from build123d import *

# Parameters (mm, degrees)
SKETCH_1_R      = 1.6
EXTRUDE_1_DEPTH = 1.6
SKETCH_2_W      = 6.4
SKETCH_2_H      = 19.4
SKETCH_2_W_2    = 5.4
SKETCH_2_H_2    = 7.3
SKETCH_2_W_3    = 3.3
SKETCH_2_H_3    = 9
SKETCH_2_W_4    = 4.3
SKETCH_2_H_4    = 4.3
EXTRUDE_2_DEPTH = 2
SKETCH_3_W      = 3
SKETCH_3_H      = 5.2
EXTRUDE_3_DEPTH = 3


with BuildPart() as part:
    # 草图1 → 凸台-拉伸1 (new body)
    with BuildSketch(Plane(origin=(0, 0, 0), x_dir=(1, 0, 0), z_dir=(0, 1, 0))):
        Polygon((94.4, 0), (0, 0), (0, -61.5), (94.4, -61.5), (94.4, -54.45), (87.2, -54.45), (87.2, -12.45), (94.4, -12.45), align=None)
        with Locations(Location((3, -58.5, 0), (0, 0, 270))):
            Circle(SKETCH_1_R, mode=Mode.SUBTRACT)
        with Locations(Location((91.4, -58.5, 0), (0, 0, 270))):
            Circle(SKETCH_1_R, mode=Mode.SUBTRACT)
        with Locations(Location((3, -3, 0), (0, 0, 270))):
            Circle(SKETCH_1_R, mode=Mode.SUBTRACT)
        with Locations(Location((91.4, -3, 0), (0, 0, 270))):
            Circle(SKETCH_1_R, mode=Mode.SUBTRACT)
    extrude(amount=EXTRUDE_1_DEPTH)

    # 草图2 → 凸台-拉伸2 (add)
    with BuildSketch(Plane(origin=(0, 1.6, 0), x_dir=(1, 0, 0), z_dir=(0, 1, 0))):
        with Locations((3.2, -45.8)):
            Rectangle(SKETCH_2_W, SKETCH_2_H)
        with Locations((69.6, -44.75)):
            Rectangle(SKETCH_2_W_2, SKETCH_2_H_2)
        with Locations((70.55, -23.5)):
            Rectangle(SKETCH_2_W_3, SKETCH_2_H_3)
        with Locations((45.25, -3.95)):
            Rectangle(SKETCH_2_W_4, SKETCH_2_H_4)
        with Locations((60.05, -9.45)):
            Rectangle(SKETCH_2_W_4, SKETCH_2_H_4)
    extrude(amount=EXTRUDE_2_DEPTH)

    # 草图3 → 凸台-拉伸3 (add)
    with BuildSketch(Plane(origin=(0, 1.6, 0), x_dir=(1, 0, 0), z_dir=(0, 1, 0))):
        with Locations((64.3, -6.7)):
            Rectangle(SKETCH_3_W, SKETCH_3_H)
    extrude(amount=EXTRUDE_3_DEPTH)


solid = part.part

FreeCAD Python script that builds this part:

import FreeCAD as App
import Part
import Sketcher

V = App.Vector
Q = App.Units.Quantity


def add_polygon(sketch, points):
    """Adds a closed chain of lines whose ends are joined by coincident constraints."""
    first, n = sketch.GeometryCount, len(points)
    for a, b in zip(points, points[1:] + points[:1]):
        sketch.addGeometry(Part.LineSegment(App.Vector(*a, 0), App.Vector(*b, 0)), False)
    for i in range(n):
        sketch.addConstraint(Sketcher.Constraint("Coincident", first + i, 2, first + (i + 1) % n, 1))

doc = App.newDocument("Part")
body = doc.addObject("PartDesign::Body", "Body")

# Sketch on XZ plane
sketch1 = body.newObject("Sketcher::SketchObject", "Sketch")
sketch1.AttachmentSupport = (doc.getObject("XZ_Plane"), [""])
sketch1.MapMode = "FlatFace"
add_polygon(sketch1, [(94.4, 0), (0, 0), (0, 61.5), (94.4, 61.5), (94.4, 54.5), (87.2, 54.5), (87.2, 12.4), (94.4, 12.4)])  # lines 0-7
sketch1.addGeometry(Part.Circle(V(3, 58.5, 0), V(0, 0, 1), 1.6), False)  # 8
sketch1.addGeometry(Part.Circle(V(91.4, 58.5, 0), V(0, 0, 1), 1.6), False)  # 9
sketch1.addGeometry(Part.Circle(V(3, 3, 0), V(0, 0, 1), 1.6), False)  # 10
sketch1.addGeometry(Part.Circle(V(91.4, 3, 0), V(0, 0, 1), 1.6), False)  # 11
sketch1.addConstraint(Sketcher.Constraint("Horizontal", 0))
sketch1.addConstraint(Sketcher.Constraint("Vertical", 1))
sketch1.addConstraint(Sketcher.Constraint("Horizontal", 2))
sketch1.addConstraint(Sketcher.Constraint("Vertical", 3))
sketch1.addConstraint(Sketcher.Constraint("Horizontal", 4))
sketch1.addConstraint(Sketcher.Constraint("Vertical", 5))
sketch1.addConstraint(Sketcher.Constraint("Horizontal", 6))
sketch1.addConstraint(Sketcher.Constraint("Vertical", 7))
sketch1.addConstraint(Sketcher.Constraint("Coincident", 0, 2, -1, 1))
sketch1.addConstraint(Sketcher.Constraint("Equal", 8, 9))
sketch1.addConstraint(Sketcher.Constraint("Equal", 9, 10))
sketch1.addConstraint(Sketcher.Constraint("Equal", 10, 11))
sketch1.addConstraint(Sketcher.Constraint("Horizontal", 8, 3, 9, 3))
sketch1.addConstraint(Sketcher.Constraint("Horizontal", 10, 3, 11, 3))
sketch1.addConstraint(Sketcher.Constraint("Vertical", 8, 3, 10, 3))
sketch1.addConstraint(Sketcher.Constraint("Vertical", 9, 3, 11, 3))
sketch1.addConstraint(Sketcher.Constraint("Vertical", 3, 2, 6, 2))
sketch1.addConstraint(Sketcher.Constraint("Diameter", 8, Q("3.2 mm")))
sketch1.addConstraint(Sketcher.Constraint("DistanceY", 5, 2, 5, 1, Q("42 mm")))
sketch1.addConstraint(Sketcher.Constraint("DistanceX", 0, 2, 0, 1, Q("94.4 mm")))
sketch1.addConstraint(Sketcher.Constraint("DistanceX", 4, 2, 4, 1, Q("7.2 mm")))
sketch1.addConstraint(Sketcher.Constraint("DistanceY", 1, 1, 1, 2, Q("61.5 mm")))
sketch1.addConstraint(Sketcher.Constraint("DistanceX", -1, 1, 8, 3, Q("3 mm")))
sketch1.addConstraint(Sketcher.Constraint("DistanceY", -1, 1, 10, 3, Q("3 mm")))
sketch1.addConstraint(Sketcher.Constraint("DistanceY", 8, 3, 1, 2, Q("3 mm")))
sketch1.addConstraint(Sketcher.Constraint("DistanceX", 9, 3, 2, 2, Q("3 mm")))
sketch1.addConstraint(Sketcher.Constraint("DistanceY", 3, 2, 3, 1, Q("7.05 mm")))
pad1 = body.newObject("PartDesign::Pad", "Pad")
pad1.Profile = sketch1
pad1.Length = 1.6
pad1.Reversed = True

# Sketch on XZ plane
sketch2 = body.newObject("Sketcher::SketchObject", "Sketch001")
sketch2.AttachmentSupport = (doc.getObject("XZ_Plane"), [""])
sketch2.MapMode = "FlatFace"
sketch2.AttachmentOffset = App.Placement(V(0, 0, -1.6), App.Rotation())
add_polygon(sketch2, [(0, 36.1), (0, 55.5), (6.4, 55.5), (6.4, 36.1)])  # lines 0-3
add_polygon(sketch2, [(66.9, 41.1), (66.9, 48.4), (72.3, 48.4), (72.3, 41.1)])  # lines 4-7
add_polygon(sketch2, [(68.9, 19), (68.9, 28), (72.2, 28), (72.2, 19)])  # lines 8-11
add_polygon(sketch2, [(43.1, 1.8), (43.1, 6.1), (47.4, 6.1), (47.4, 1.8)])  # lines 12-15
add_polygon(sketch2, [(57.9, 7.3), (57.9, 11.6), (62.2, 11.6), (62.2, 7.3)])  # lines 16-19
sketch2.addConstraint(Sketcher.Constraint("Vertical", 0))
sketch2.addConstraint(Sketcher.Constraint("Horizontal", 1))
sketch2.addConstraint(Sketcher.Constraint("Vertical", 2))
sketch2.addConstraint(Sketcher.Constraint("Horizontal", 3))
sketch2.addConstraint(Sketcher.Constraint("Vertical", 4))
sketch2.addConstraint(Sketcher.Constraint("Horizontal", 5))
sketch2.addConstraint(Sketcher.Constraint("Vertical", 6))
sketch2.addConstraint(Sketcher.Constraint("Horizontal", 7))
sketch2.addConstraint(Sketcher.Constraint("Vertical", 8))
sketch2.addConstraint(Sketcher.Constraint("Horizontal", 9))
sketch2.addConstraint(Sketcher.Constraint("Vertical", 10))
sketch2.addConstraint(Sketcher.Constraint("Horizontal", 11))
sketch2.addConstraint(Sketcher.Constraint("Vertical", 12))
sketch2.addConstraint(Sketcher.Constraint("Horizontal", 13))
sketch2.addConstraint(Sketcher.Constraint("Vertical", 14))
sketch2.addConstraint(Sketcher.Constraint("Horizontal", 15))
sketch2.addConstraint(Sketcher.Constraint("Vertical", 16))
sketch2.addConstraint(Sketcher.Constraint("Horizontal", 17))
sketch2.addConstraint(Sketcher.Constraint("Vertical", 18))
sketch2.addConstraint(Sketcher.Constraint("Horizontal", 19))
sketch2.addConstraint(Sketcher.Constraint("PointOnObject", 0, 2, -2))
sketch2.addConstraint(Sketcher.Constraint("Equal", 15, 17))
sketch2.addConstraint(Sketcher.Constraint("Equal", 19, 12))
sketch2.addConstraint(Sketcher.Constraint("Equal", 14, 16))
sketch2.addConstraint(Sketcher.Constraint("DistanceY", 8, 1, 8, 2, Q("9 mm")))
sketch2.addConstraint(Sketcher.Constraint("DistanceX", 1, 1, 1, 2, Q("6.4 mm")))
sketch2.addConstraint(Sketcher.Constraint("DistanceX", 5, 1, 5, 2, Q("5.4 mm")))
sketch2.addConstraint(Sketcher.Constraint("DistanceX", 9, 1, 9, 2, Q("3.3 mm")))
sketch2.addConstraint(Sketcher.Constraint("DistanceX", 13, 1, 13, 2, Q("4.3 mm")))
sketch2.addConstraint(Sketcher.Constraint("DistanceY", 0, 1, 0, 2, Q("19.4 mm")))
sketch2.addConstraint(Sketcher.Constraint("DistanceY", 4, 1, 4, 2, Q("7.3 mm")))
sketch2.addConstraint(Sketcher.Constraint("DistanceY", -1, 1, 8, 2, Q("28 mm")))
sketch2.addConstraint(Sketcher.Constraint("DistanceY", 2, 2, 6, 2, Q("5 mm")))
sketch2.addConstraint(Sketcher.Constraint("DistanceX", 7, 2, 8, 2, Q("2 mm")))
sketch2.addConstraint(Sketcher.Constraint("DistanceY", 12, 2, 7, 2, Q("35 mm")))
sketch2.addConstraint(Sketcher.Constraint("DistanceX", 16, 2, 11, 2, Q("11 mm")))
sketch2.addConstraint(Sketcher.Constraint("DistanceY", -1, 1, 0, 2, Q("55.5 mm")))
sketch2.addConstraint(Sketcher.Constraint("DistanceX", -1, 1, 4, 2, Q("66.9 mm")))
sketch2.addConstraint(Sketcher.Constraint("DistanceX", -1, 1, 12, 2, Q("43.1 mm")))
sketch2.addConstraint(Sketcher.Constraint("DistanceY", -1, 1, 16, 2, Q("11.6 mm")))
pad2 = body.newObject("PartDesign::Pad", "Pad001")
pad2.Profile = sketch2
pad2.Length = 2
pad2.Reversed = True

# Sketch on XZ plane
sketch3 = body.newObject("Sketcher::SketchObject", "Sketch002")
sketch3.AttachmentSupport = (doc.getObject("XZ_Plane"), [""])
sketch3.MapMode = "FlatFace"
sketch3.AttachmentOffset = App.Placement(V(0, 0, -1.6), App.Rotation())
add_polygon(sketch3, [(62.8, 4.1), (62.8, 9.3), (65.8, 9.3), (65.8, 4.1)])  # lines 0-3
sketch3.addConstraint(Sketcher.Constraint("Vertical", 0))
sketch3.addConstraint(Sketcher.Constraint("Horizontal", 1))
sketch3.addConstraint(Sketcher.Constraint("Vertical", 2))
sketch3.addConstraint(Sketcher.Constraint("Horizontal", 3))
sketch3.addConstraint(Sketcher.Constraint("DistanceX", 1, 1, 1, 2, Q("3 mm")))
sketch3.addConstraint(Sketcher.Constraint("DistanceY", 0, 1, 0, 2, Q("5.2 mm")))
sketch3.addConstraint(Sketcher.Constraint("DistanceX", -1, 1, 0, 2, Q("62.8 mm")))
sketch3.addConstraint(Sketcher.Constraint("DistanceY", -1, 1, 0, 2, Q("9.3 mm")))
pad3 = body.newObject("PartDesign::Pad", "Pad002")
pad3.Profile = sketch3
pad3.Length = 3
pad3.Reversed = True

doc.recompute()
